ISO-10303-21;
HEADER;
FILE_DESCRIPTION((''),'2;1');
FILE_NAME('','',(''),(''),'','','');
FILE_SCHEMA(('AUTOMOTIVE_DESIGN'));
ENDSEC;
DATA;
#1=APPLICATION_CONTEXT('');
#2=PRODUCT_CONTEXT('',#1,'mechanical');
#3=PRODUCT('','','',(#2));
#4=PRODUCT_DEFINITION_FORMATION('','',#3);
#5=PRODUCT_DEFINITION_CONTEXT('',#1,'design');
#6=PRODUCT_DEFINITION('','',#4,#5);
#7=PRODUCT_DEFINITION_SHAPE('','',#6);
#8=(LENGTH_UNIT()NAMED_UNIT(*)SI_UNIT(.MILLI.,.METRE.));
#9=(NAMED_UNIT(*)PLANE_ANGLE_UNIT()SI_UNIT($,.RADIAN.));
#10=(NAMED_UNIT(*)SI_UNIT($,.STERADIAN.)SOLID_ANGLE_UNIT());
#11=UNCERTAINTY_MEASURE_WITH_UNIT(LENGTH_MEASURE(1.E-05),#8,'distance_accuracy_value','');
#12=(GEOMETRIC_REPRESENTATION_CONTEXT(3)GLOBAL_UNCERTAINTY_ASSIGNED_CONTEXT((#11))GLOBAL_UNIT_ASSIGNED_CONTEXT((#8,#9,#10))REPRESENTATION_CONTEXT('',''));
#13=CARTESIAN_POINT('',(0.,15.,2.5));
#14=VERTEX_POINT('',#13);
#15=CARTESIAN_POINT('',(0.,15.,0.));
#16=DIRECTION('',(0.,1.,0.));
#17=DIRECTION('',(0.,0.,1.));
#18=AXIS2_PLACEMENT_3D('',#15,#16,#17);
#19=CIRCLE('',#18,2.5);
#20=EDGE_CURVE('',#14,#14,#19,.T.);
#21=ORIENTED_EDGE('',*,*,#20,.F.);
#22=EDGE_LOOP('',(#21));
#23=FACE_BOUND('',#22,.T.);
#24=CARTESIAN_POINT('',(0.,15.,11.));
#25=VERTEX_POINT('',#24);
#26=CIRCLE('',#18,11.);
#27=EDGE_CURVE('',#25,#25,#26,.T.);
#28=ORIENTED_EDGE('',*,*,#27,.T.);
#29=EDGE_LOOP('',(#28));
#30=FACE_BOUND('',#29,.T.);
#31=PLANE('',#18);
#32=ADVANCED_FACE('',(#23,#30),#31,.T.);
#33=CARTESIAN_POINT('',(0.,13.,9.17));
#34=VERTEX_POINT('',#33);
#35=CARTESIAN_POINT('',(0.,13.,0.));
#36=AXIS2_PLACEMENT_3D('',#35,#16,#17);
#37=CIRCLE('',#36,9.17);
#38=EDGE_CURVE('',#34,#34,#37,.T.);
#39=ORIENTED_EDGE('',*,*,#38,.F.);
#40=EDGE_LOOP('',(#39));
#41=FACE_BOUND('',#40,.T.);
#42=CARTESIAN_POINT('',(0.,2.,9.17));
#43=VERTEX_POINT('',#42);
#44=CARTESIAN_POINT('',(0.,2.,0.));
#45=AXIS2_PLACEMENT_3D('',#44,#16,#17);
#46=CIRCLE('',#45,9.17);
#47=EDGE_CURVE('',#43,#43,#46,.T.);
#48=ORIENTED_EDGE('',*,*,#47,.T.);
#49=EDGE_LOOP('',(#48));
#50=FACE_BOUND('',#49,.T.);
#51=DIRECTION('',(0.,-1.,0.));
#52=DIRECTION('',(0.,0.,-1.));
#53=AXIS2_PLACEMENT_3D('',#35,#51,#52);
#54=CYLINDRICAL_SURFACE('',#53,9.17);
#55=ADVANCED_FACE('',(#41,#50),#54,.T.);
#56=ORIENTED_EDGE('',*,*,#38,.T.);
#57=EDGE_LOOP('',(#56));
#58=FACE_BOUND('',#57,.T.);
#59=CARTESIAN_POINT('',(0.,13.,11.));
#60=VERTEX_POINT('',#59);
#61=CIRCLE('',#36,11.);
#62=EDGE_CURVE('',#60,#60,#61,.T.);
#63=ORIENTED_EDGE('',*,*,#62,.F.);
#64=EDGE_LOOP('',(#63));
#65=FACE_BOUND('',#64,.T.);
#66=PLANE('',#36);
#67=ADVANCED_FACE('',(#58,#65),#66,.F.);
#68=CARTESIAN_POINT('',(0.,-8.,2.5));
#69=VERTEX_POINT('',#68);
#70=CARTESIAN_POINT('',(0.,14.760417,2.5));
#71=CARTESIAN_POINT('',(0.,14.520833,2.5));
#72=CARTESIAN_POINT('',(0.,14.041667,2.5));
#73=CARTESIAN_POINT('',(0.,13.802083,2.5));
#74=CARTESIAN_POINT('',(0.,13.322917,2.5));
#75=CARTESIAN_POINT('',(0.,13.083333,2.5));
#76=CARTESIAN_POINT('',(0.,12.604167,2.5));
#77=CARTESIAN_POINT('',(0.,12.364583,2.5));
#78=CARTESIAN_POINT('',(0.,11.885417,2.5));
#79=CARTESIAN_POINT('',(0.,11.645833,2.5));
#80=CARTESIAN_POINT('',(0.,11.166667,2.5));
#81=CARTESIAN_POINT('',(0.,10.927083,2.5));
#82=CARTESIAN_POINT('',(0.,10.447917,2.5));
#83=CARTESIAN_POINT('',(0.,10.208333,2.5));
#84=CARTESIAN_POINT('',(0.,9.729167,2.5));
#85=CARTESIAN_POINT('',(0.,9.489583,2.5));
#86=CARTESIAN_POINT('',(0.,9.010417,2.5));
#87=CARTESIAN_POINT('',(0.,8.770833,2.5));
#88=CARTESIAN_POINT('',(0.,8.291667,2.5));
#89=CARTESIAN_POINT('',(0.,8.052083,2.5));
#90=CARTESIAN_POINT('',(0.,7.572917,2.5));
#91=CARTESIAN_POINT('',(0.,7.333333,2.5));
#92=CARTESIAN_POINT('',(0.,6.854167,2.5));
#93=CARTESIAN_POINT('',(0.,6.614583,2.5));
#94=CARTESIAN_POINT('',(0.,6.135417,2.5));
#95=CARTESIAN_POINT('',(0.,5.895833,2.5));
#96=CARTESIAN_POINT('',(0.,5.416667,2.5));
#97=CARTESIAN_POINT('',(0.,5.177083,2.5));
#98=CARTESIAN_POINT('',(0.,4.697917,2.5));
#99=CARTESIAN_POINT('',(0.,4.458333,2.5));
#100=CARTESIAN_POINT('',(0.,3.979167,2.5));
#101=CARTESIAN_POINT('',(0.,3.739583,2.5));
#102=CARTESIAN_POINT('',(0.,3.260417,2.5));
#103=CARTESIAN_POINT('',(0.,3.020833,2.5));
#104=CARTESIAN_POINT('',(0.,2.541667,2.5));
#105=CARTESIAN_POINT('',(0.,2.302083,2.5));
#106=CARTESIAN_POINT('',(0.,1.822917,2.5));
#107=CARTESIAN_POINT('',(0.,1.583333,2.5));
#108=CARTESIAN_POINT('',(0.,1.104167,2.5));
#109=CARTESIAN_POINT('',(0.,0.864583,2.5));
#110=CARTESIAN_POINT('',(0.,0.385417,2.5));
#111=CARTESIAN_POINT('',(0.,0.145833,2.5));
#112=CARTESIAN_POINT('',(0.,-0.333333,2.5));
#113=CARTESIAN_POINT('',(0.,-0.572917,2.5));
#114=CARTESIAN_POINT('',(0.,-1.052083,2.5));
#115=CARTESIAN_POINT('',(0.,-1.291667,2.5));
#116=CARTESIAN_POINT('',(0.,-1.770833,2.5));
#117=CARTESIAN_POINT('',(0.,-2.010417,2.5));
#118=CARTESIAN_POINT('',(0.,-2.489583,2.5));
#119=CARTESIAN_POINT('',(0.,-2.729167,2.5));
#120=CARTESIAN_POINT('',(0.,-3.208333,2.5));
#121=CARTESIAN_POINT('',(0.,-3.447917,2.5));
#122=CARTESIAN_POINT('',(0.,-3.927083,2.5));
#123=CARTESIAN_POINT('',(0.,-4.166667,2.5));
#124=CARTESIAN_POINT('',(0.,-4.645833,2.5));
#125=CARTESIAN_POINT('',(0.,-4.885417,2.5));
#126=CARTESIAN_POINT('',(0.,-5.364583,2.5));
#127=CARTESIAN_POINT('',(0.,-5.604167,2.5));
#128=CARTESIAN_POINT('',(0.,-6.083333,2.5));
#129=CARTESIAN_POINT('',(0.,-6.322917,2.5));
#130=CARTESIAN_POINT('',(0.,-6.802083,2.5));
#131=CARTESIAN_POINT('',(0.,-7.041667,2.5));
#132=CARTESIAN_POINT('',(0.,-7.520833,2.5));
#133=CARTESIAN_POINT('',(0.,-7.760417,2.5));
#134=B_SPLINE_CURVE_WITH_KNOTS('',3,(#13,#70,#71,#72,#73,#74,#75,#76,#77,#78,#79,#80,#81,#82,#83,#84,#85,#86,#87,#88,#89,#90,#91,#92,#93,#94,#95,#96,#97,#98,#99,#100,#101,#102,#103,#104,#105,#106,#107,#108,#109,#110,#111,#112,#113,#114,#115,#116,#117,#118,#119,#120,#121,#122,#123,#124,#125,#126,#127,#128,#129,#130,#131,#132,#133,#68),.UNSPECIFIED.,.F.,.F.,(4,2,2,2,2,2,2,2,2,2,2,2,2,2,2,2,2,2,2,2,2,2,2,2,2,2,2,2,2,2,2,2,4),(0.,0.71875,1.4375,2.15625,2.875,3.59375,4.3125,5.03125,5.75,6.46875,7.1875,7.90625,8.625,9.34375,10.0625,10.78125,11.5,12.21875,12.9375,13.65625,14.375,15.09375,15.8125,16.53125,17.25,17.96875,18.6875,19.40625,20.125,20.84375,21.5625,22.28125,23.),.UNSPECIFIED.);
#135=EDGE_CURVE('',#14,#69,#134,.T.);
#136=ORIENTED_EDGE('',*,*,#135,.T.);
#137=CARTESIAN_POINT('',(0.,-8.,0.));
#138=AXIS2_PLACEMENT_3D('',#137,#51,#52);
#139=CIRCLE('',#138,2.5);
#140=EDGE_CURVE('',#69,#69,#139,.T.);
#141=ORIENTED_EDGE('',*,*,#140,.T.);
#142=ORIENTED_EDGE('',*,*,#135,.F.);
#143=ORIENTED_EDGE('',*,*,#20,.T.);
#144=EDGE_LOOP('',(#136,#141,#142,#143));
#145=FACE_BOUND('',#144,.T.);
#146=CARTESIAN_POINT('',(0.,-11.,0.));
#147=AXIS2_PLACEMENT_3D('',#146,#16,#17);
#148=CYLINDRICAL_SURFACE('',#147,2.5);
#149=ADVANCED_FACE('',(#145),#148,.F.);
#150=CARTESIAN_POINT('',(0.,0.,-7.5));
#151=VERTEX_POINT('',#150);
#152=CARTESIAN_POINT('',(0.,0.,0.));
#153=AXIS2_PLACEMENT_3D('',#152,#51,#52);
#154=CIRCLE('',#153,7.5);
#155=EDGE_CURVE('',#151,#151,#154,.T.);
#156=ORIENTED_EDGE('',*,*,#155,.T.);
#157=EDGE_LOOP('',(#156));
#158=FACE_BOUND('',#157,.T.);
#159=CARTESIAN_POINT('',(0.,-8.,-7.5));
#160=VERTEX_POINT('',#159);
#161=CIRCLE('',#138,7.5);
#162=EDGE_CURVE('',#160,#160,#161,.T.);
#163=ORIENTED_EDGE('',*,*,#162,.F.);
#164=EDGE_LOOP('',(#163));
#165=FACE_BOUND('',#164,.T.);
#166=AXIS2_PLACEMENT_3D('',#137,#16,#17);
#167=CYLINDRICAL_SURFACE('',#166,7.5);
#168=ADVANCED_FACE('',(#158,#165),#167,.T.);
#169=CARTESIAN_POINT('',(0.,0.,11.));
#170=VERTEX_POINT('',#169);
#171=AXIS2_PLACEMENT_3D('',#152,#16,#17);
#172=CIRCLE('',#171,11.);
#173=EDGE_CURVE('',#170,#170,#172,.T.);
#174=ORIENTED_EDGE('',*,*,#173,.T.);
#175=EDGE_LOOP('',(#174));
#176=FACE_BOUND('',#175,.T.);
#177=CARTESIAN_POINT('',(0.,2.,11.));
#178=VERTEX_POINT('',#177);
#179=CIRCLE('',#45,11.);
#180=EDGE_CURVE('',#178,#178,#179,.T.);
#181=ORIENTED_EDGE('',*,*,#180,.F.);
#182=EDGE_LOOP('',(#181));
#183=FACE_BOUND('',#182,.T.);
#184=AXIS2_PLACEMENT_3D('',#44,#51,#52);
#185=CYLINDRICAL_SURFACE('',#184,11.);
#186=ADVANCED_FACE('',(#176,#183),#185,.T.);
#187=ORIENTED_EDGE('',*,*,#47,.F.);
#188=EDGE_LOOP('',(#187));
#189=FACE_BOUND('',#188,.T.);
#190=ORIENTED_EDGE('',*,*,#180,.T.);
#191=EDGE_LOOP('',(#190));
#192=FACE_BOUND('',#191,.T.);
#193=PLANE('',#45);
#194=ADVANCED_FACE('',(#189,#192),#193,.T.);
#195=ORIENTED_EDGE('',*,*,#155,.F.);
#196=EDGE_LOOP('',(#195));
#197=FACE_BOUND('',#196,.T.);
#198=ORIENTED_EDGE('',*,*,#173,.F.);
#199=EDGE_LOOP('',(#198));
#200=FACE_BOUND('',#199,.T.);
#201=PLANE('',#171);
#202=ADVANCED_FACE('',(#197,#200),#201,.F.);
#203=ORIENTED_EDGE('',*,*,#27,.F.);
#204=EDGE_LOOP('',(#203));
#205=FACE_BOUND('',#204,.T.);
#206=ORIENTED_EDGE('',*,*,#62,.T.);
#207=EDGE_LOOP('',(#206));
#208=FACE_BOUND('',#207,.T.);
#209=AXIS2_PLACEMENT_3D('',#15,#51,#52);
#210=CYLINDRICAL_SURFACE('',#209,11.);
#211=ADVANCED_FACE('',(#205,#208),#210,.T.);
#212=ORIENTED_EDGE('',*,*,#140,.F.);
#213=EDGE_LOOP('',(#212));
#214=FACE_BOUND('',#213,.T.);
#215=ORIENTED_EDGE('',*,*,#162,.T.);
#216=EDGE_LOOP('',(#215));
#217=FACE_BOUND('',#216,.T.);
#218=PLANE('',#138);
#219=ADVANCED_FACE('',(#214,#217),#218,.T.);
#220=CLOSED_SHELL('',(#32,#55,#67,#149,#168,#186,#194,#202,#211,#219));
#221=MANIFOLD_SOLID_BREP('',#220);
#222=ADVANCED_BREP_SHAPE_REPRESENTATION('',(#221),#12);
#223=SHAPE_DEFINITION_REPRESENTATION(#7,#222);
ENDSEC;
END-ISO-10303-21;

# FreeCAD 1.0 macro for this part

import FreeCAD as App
import Part
import Sketcher

V = App.Vector

doc = App.newDocument("Part")
params = doc.addObject("Spreadsheet::Sheet", "Params")
for row, (alias, value) in enumerate([
    ("sketch1_diameter", "22 mm"),
    ("pad1_length", "2 mm"),
    ("sketch2_diameter", "18.34 mm"),
    ("pad2_length", "11 mm"),
    ("sketch3_diameter", "22 mm"),
    ("pad3_length", "2 mm"),
    ("sketch4_diameter", "5 mm"),
    ("pocket1_length", "26 mm"),
    ("sketch5_diameter", "15 mm"),
    ("sketch5_diameter2", "5 mm"),
    ("pad4_length", "8 mm"),
], start=1):
    params.set(f"A{row}", alias)
    params.set(f"B{row}", "=" + value)
    params.setAlias(f"B{row}", alias)

body = doc.addObject("PartDesign::Body", "Body")

sketch1 = doc.addObject("Sketcher::SketchObject", "Sketch")
body.addObject(sketch1)
sketch1.AttachmentSupport = (doc.XZ_Plane, [""])
sketch1.MapMode = "FlatFace"
sketch1.addGeometry(Part.Circle(V(0, 0, 0), V(0, 0, 1), 11), False)
sketch1.addConstraint(Sketcher.Constraint("Coincident", 0, 3, -1, 1))
sketch1.addConstraint(Sketcher.Constraint("Diameter", 0, 22.0))
sketch1.setExpression("Constraints[1]", "Params.sketch1_diameter")
pad1 = doc.addObject("PartDesign::Pad", "Pad")
body.addObject(pad1)
pad1.Profile = sketch1
pad1.setExpression("Length", "Params.pad1_length")
pad1.Reversed = True

sketch2 = doc.addObject("Sketcher::SketchObject", "Sketch001")
body.addObject(sketch2)
sketch2.AttachmentSupport = (doc.XZ_Plane, [""])
sketch2.MapMode = "FlatFace"
sketch2.AttachmentOffset = App.Placement(V(0, 0, -2), App.Rotation())
sketch2.addGeometry(Part.Circle(V(0, 0, 0), V(0, 0, 1), 9.17), False)
sketch2.addConstraint(Sketcher.Constraint("Coincident", 0, 3, -1, 1))
sketch2.addConstraint(Sketcher.Constraint("Diameter", 0, 18.34))
sketch2.setExpression("Constraints[1]", "Params.sketch2_diameter")
pad2 = doc.addObject("PartDesign::Pad", "Pad001")
body.addObject(pad2)
pad2.Profile = sketch2
pad2.setExpression("Length", "Params.pad2_length")
pad2.Reversed = True

sketch3 = doc.addObject("Sketcher::SketchObject", "Sketch002")
body.addObject(sketch3)
sketch3.AttachmentSupport = (doc.XZ_Plane, [""])
sketch3.MapMode = "FlatFace"
sketch3.AttachmentOffset = App.Placement(V(0, 0, -13), App.Rotation())
sketch3.addGeometry(Part.Circle(V(0, 0, 0), V(0, 0, 1), 11), False)
sketch3.addConstraint(Sketcher.Constraint("Coincident", 0, 3, -1, 1))
sketch3.addConstraint(Sketcher.Constraint("Diameter", 0, 22.0))
sketch3.setExpression("Constraints[1]", "Params.sketch3_diameter")
pad3 = doc.addObject("PartDesign::Pad", "Pad002")
body.addObject(pad3)
pad3.Profile = sketch3
pad3.setExpression("Length", "Params.pad3_length")
pad3.Reversed = True

sketch4 = doc.addObject("Sketcher::SketchObject", "Sketch003")
body.addObject(sketch4)
sketch4.AttachmentSupport = (doc.XZ_Plane, [""])
sketch4.MapMode = "FlatFace"
sketch4.AttachmentOffset = App.Placement(V(0, 0, -15), App.Rotation())
sketch4.addGeometry(Part.Circle(V(0, 0, 0), V(0, 0, 1), 2.5), False)
sketch4.addConstraint(Sketcher.Constraint("Coincident", 0, 3, -1, 1))
sketch4.addConstraint(Sketcher.Constraint("Diameter", 0, 5.0))
sketch4.setExpression("Constraints[1]", "Params.sketch4_diameter")
pocket1 = doc.addObject("PartDesign::Pocket", "Pocket")
body.addObject(pocket1)
pocket1.Profile = sketch4
pocket1.setExpression("Length", "Params.pocket1_length")
pocket1.Reversed = True

sketch5 = doc.addObject("Sketcher::SketchObject", "Sketch004")
body.addObject(sketch5)
sketch5.AttachmentSupport = (doc.XZ_Plane, [""])
sketch5.MapMode = "FlatFace"
sketch5.addGeometry(Part.Circle(V(0, 0, 0), V(0, 0, 1), 7.5), False)
sketch5.addGeometry(Part.Circle(V(0, 0, 0), V(0, 0, 1), 2.5), False)
sketch5.addConstraint(Sketcher.Constraint("Coincident", 0, 3, -1, 1))
sketch5.addConstraint(Sketcher.Constraint("Coincident", 1, 3, -1, 1))
sketch5.addConstraint(Sketcher.Constraint("Diameter", 0, 15.0))
sketch5.addConstraint(Sketcher.Constraint("Diameter", 1, 5.0))
sketch5.setExpression("Constraints[2]", "Params.sketch5_diameter")
sketch5.setExpression("Constraints[3]", "Params.sketch5_diameter2")
pad4 = doc.addObject("PartDesign::Pad", "Pad003")
body.addObject(pad4)
pad4.Profile = sketch5
pad4.setExpression("Length", "Params.pad4_length")

doc.recompute()
